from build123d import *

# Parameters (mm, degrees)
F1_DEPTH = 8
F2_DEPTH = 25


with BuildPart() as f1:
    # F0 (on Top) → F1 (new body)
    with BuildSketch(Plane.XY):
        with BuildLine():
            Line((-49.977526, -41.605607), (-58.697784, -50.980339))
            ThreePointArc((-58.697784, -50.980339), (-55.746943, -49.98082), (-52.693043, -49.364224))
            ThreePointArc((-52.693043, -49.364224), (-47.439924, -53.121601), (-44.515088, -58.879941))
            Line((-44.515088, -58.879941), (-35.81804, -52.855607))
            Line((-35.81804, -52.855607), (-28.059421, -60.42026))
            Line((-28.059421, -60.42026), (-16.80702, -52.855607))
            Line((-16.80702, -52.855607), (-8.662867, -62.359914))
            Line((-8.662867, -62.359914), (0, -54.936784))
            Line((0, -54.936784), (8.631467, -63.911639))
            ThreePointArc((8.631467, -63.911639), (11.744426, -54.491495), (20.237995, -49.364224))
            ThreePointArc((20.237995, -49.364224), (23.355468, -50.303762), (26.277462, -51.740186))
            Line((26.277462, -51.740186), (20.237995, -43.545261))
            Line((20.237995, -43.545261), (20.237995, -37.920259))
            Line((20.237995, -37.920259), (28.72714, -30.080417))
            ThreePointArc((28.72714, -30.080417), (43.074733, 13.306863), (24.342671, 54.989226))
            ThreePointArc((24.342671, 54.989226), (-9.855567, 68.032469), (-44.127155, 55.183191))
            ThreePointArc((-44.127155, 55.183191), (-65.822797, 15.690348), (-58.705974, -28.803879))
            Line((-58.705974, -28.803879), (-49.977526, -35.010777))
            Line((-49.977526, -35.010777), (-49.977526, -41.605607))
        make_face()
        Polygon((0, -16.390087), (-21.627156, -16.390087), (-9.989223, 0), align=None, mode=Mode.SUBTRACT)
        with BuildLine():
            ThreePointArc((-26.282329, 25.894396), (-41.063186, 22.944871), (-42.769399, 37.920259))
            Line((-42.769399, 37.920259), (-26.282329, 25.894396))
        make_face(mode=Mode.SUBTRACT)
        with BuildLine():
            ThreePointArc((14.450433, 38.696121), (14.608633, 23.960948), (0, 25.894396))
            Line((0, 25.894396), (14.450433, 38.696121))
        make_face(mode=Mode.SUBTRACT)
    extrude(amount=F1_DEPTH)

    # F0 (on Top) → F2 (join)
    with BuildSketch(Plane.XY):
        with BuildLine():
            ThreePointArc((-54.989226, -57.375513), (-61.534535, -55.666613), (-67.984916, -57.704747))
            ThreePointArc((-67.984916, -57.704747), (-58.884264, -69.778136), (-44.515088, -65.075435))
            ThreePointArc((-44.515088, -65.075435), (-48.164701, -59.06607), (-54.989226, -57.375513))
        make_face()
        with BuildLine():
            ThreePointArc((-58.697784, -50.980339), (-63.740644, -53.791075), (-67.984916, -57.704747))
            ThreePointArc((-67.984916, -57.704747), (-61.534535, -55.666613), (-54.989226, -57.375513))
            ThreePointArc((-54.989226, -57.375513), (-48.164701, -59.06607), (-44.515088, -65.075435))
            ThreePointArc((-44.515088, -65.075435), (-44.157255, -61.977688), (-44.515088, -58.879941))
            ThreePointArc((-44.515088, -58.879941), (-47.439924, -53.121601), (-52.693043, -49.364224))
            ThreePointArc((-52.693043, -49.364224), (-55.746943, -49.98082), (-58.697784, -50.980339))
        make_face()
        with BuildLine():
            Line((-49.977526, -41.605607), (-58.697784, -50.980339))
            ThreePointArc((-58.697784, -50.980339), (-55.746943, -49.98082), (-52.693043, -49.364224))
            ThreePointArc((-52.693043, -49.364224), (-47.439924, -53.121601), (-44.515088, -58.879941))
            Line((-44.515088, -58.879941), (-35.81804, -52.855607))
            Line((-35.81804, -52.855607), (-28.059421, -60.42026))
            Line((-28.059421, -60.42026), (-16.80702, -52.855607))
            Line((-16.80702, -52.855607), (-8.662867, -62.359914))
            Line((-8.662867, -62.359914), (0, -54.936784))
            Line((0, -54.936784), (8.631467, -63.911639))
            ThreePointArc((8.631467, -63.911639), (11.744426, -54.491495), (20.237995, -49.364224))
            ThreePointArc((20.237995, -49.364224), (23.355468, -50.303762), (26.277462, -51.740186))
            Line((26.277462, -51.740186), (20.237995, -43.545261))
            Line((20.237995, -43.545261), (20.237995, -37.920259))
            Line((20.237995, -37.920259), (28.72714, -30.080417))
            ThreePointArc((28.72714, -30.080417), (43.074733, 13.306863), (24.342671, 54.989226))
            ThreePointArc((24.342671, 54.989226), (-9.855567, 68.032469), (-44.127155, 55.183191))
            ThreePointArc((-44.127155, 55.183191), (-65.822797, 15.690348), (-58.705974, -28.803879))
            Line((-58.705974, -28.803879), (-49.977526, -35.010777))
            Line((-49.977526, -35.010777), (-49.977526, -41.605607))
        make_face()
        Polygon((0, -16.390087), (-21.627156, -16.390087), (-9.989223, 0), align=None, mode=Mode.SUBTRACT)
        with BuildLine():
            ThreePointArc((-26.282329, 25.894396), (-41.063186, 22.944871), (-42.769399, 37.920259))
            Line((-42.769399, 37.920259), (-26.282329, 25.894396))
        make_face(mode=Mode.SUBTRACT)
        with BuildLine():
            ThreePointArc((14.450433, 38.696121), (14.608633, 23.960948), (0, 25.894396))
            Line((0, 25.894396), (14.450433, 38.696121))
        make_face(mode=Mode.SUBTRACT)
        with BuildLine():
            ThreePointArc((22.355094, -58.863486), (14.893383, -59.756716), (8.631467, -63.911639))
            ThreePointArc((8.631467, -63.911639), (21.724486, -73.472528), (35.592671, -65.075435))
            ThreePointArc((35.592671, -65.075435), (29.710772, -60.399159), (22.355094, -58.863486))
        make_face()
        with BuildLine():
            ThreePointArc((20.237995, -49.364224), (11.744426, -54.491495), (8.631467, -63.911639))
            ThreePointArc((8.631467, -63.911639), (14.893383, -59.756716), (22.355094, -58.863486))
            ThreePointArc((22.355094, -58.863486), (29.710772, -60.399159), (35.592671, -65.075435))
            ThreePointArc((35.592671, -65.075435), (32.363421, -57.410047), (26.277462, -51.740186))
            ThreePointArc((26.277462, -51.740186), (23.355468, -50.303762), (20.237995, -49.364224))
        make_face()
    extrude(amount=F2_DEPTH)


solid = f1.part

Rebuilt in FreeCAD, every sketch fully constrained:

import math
import FreeCAD as App
import Part
import Sketcher

V = App.Vector
Q = App.Units.Quantity

doc = App.newDocument("Part")
body = doc.addObject("PartDesign::Body", "Body")

sketch1 = doc.addObject("Sketcher::SketchObject", "Sketch")
body.addObject(sketch1)
sketch1.AttachmentSupport = (doc.XY_Plane, [""])
sketch1.MapMode = "FlatFace"
sketch1.addGeometry([
    Part.LineSegment(V(-50, -42, 0), V(-59, -51, 0)),
    Part.ArcOfCircle(Part.Circle(V(-49, -74, 0), V(0, 0, 1), 24), math.radians(97.77), math.radians(112.36)),
    Part.ArcOfCircle(Part.Circle(V(-58, -62, 0), V(0, 0, 1), 14), math.radians(13), math.radians(68)),
    Part.LineSegment(V(-45, -59, 0), V(-36, -53, 0)),
    Part.LineSegment(V(-36, -53, 0), V(-28, -60, 0)),
    Part.LineSegment(V(-28, -60, 0), V(-17, -53, 0)),
    Part.LineSegment(V(-17, -53, 0), V(-9, -62, 0)),
    Part.LineSegment(V(-9, -62, 0), V(0, -55, 0)),
    Part.LineSegment(V(0, -55, 0), V(9, -64, 0)),
    Part.ArcOfCircle(Part.Circle(V(23, -63, 0), V(0, 0, 1), 14), math.radians(101), math.radians(182)),
    Part.ArcOfCircle(Part.Circle(V(16, -69, 0), V(0, 0, 1), 20), math.radians(59.12), math.radians(77.93)),
    Part.LineSegment(V(26, -52, 0), V(20, -44, 0)),
    Part.LineSegment(V(20, -44, 0), V(20, -38, 0)),
    Part.LineSegment(V(20, -38, 0), V(29, -30, 0)),
    Part.ArcOfCircle(Part.Circle(V(-20, 10, 0), V(0, 0, 1), 63), math.radians(-40), math.radians(45)),
    Part.ArcOfCircle(Part.Circle(V(-10, 16, 0), V(0, 0, 1), 52), math.radians(48), math.radians(131)),
    Part.ArcOfCircle(Part.Circle(V(3, 4, 0), V(0, 0, 1), 69), math.radians(132), math.radians(208)),
    Part.LineSegment(V(-59, -29, 0), V(-50, -35, 0)),
    Part.LineSegment(V(-50, -35, 0), V(-50, -42, 0)),
    Part.LineSegment(V(-10, 0, 0), V(0, -16, 0)),
    Part.LineSegment(V(0, -16, 0), V(-22, -16, 0)),
    Part.LineSegment(V(-22, -16, 0), V(-10, 0, 0)),
    Part.LineSegment(V(-43, 38, 0), V(-26, 26, 0)),
    Part.ArcOfCircle(Part.Circle(V(-35, 31, 0), V(0, 0, 1), 10), math.radians(139), math.radians(329)),
    Part.LineSegment(V(0, 26, 0), V(14, 39, 0)),
    Part.ArcOfCircle(Part.Circle(V(8, 31, 0), V(0, 0, 1), 10), math.radians(-147), math.radians(50)),
], False)
sketch1.addConstraint([
    Sketcher.Constraint("Coincident", 0, 2, 1, 2),
    Sketcher.Constraint("Coincident", 1, 1, 2, 2),
    Sketcher.Constraint("Coincident", 2, 1, 3, 1),
    Sketcher.Constraint("Coincident", 3, 2, 4, 1),
    Sketcher.Constraint("Coincident", 4, 2, 5, 1),
    Sketcher.Constraint("Coincident", 5, 2, 6, 1),
    Sketcher.Constraint("Coincident", 6, 2, 7, 1),
    Sketcher.Constraint("Coincident", 7, 2, 8, 1),
    Sketcher.Constraint("Coincident", 8, 2, 9, 2),
    Sketcher.Constraint("Coincident", 9, 1, 10, 2),
    Sketcher.Constraint("Coincident", 10, 1, 11, 1),
    Sketcher.Constraint("Coincident", 11, 2, 12, 1),
    Sketcher.Constraint("Coincident", 12, 2, 13, 1),
    Sketcher.Constraint("Coincident", 13, 2, 14, 1),
    Sketcher.Constraint("Coincident", 14, 2, 15, 1),
    Sketcher.Constraint("Coincident", 15, 2, 16, 1),
    Sketcher.Constraint("Coincident", 16, 2, 17, 1),
    Sketcher.Constraint("Coincident", 17, 2, 18, 1),
    Sketcher.Constraint("Coincident", 18, 2, 0, 1),
    Sketcher.Constraint("Coincident", 19, 2, 20, 1),
    Sketcher.Constraint("Coincident", 20, 2, 21, 1),
    Sketcher.Constraint("Coincident", 21, 2, 19, 1),
    Sketcher.Constraint("Coincident", 22, 1, 23, 1),
    Sketcher.Constraint("Coincident", 23, 2, 22, 2),
    Sketcher.Constraint("Coincident", 24, 1, 25, 1),
    Sketcher.Constraint("Coincident", 25, 2, 24, 2),
    Sketcher.Constraint("Vertical", 12),
    Sketcher.Constraint("Vertical", 18),
    Sketcher.Constraint("Horizontal", 20),
    Sketcher.Constraint("PointOnObject", 7, 2, -2),
    Sketcher.Constraint("PointOnObject", 19, 2, -2),
    Sketcher.Constraint("PointOnObject", 21, 2, -1),
    Sketcher.Constraint("PointOnObject", 24, 1, -2),
    Sketcher.Constraint("Perpendicular", 6, 7),
    Sketcher.Constraint("Horizontal", 3, 2, 5, 2),
    Sketcher.Constraint("Horizontal", 1, 1, 9, 1),
    Sketcher.Constraint("Horizontal", 23, 2, 24, 1),
    Sketcher.Constraint("Vertical", 9, 1, 11, 2),
    Sketcher.Constraint("Radius", 25, Q("9.7513 mm")),
    Sketcher.Constraint("Radius", 1, Q("24.477419 mm")),
    Sketcher.Constraint("Radius", 23, Q("10.23918 mm")),
    Sketcher.Constraint("DistanceY", 3, 2, 18, 2, Q("11.25 mm")),
    Sketcher.Constraint("Radius", 2, Q("13.587448 mm")),
    Sketcher.Constraint("Radius", 9, Q("14.299787 mm")),
    Sketcher.Constraint("Radius", 10, Q("19.854426 mm")),
    Sketcher.Constraint("Radius", 14, Q("63.046044 mm")),
    Sketcher.Constraint("Radius", 15, Q("51.738504 mm")),
    Sketcher.Constraint("Radius", 16, Q("69.430735 mm")),
    Sketcher.Constraint("DistanceX", 15, 3, 10, 3, Q("26.089001 mm")),
    Sketcher.Constraint("DistanceY", 18, 2, 18, 1, Q("6.59483 mm")),
    Sketcher.Constraint("DistanceX", 22, 1, -1, 1, Q("42.769399 mm")),
    Sketcher.Constraint("DistanceX", 1, 1, 14, 3, Q("32.805301 mm")),
    Sketcher.Constraint("DistanceY", 1, 3, 2, 1, Q("14.7372 mm")),
    Sketcher.Constraint("DistanceX", 4, 2, 5, 2, Q("11.252401 mm")),
    Sketcher.Constraint("DistanceX", 8, 2, 10, 3, Q("7.4554 mm")),
    Sketcher.Constraint("DistanceY", 7, 2, 10, 1, Q("3.196598 mm")),
    Sketcher.Constraint("DistanceY", 14, 3, 15, 2, Q("45.121399 mm")),
    Sketcher.Constraint("DistanceY", 17, 2, 16, 2, Q("6.206898 mm")),
    Sketcher.Constraint("Distance", 5, Q("13.55878 mm")),
    Sketcher.Constraint("Distance", 7, Q("11.408248 mm")),
    Sketcher.Constraint("Distance", 11, Q("10.179978 mm")),
    Sketcher.Constraint("Distance", 17, Q("10.71034 mm")),
    Sketcher.Constraint("Distance", 22, Q("20.406981 mm")),
    Sketcher.Constraint("Distance", 24, Q("19.305418 mm")),
    Sketcher.Constraint("DistanceX", 20, 2, 20, 1, Q("21.627156 mm")),
    Sketcher.Constraint("DistanceY", 12, 1, 12, 2, Q("5.625002 mm")),
    Sketcher.Constraint("DistanceY", 1, 3, -1, 1, Q("73.617141 mm")),
    Sketcher.Constraint("DistanceY", 9, 3, -1, 1, Q("63.40978 mm")),
    Sketcher.Constraint("DistanceX", 14, 3, -1, 1, Q("19.887742 mm")),
    Sketcher.Constraint("DistanceY", -1, 1, 23, 3, Q("31.21724 mm")),
    Sketcher.Constraint("DistanceY", -1, 1, 25, 3, Q("31.259961 mm")),
    Sketcher.Constraint("DistanceY", 0, 2, -1, 1, Q("50.980339 mm")),
    Sketcher.Constraint("DistanceX", 2, 1, -1, 1, Q("44.515088 mm")),
    Sketcher.Constraint("DistanceX", 3, 2, -1, 1, Q("35.81804 mm")),
    Sketcher.Constraint("DistanceX", 4, 2, -1, 1, Q("28.059421 mm")),
    Sketcher.Constraint("DistanceY", 4, 2, -1, 1, Q("60.42026 mm")),
    Sketcher.Constraint("DistanceY", 8, 2, -1, 1, Q("63.911639 mm")),
    Sketcher.Constraint("DistanceY", 11, 2, -1, 1, Q("43.545261 mm")),
    Sketcher.Constraint("DistanceX", -1, 1, 13, 2, Q("28.72714 mm")),
    Sketcher.Constraint("DistanceX", -1, 1, 14, 2, Q("24.342671 mm")),
    Sketcher.Constraint("DistanceY", -1, 1, 15, 2, Q("55.183191 mm")),
    Sketcher.Constraint("DistanceY", -1, 1, 22, 1, Q("37.920259 mm")),
    Sketcher.Constraint("DistanceY", 9, 3, 2, 3, Q("1.432092 mm")),
    Sketcher.Constraint("DistanceX", 2, 3, 10, 3, Q("73.83157 mm")),
    Sketcher.Constraint("DistanceX", 15, 3, 16, 3, Q("12.587109 mm")),
    Sketcher.Constraint("DistanceY", 13, 2, 19, 2, Q("13.69033 mm")),
    Sketcher.Constraint("DistanceX", 14, 3, 21, 2, Q("9.898519 mm")),
])
pad1 = doc.addObject("PartDesign::Pad", "Pad")
body.addObject(pad1)
pad1.Profile = sketch1
pad1.Length = 8

sketch2 = doc.addObject("Sketcher::SketchObject", "Sketch001")
body.addObject(sketch2)
sketch2.AttachmentSupport = (doc.XY_Plane, [""])
sketch2.MapMode = "FlatFace"
sketch2.addGeometry([
    Part.ArcOfCircle(Part.Circle(V(-55, -57, 0), V(0, 0, 1), 13), math.radians(-179), math.radians(-36)),
    Part.ArcOfCircle(Part.Circle(V(-58, -62, 0), V(0, 0, 1), 14), math.radians(-13), math.radians(13)),
    Part.LineSegment(V(-45, -59, 0), V(-36, -53, 0)),
    Part.LineSegment(V(-36, -53, 0), V(-28, -60, 0)),
    Part.LineSegment(V(-28, -60, 0), V(-17, -53, 0)),
    Part.LineSegment(V(-17, -53, 0), V(-9, -62, 0)),
    Part.LineSegment(V(-9, -62, 0), V(0, -55, 0)),
    Part.LineSegment(V(0, -55, 0), V(9, -64, 0)),
    Part.ArcOfCircle(Part.Circle(V(22, -59, 0), V(0, 0, 1), 15), math.radians(-160), math.radians(-25)),
    Part.ArcOfCircle(Part.Circle(V(16, -69, 0), V(0, 0, 1), 20), math.radians(11), math.radians(59)),
    Part.LineSegment(V(26, -52, 0), V(20, -44, 0)),
    Part.LineSegment(V(20, -44, 0), V(20, -38, 0)),
    Part.LineSegment(V(20, -38, 0), V(29, -30, 0)),
    Part.ArcOfCircle(Part.Circle(V(-20, 10, 0), V(0, 0, 1), 63), math.radians(-40), math.radians(45)),
    Part.ArcOfCircle(Part.Circle(V(-10, 16, 0), V(0, 0, 1), 52), math.radians(48), math.radians(131)),
    Part.ArcOfCircle(Part.Circle(V(3, 4, 0), V(0, 0, 1), 69), math.radians(132), math.radians(208)),
    Part.LineSegment(V(-59, -29, 0), V(-50, -35, 0)),
    Part.LineSegment(V(-50, -35, 0), V(-50, -42, 0)),
    Part.LineSegment(V(-50, -42, 0), V(-59, -51, 0)),
    Part.ArcOfCircle(Part.Circle(V(-49, -74, 0), V(0, 0, 1), 24), math.radians(112), math.radians(139)),
    Part.LineSegment(V(-10, 0, 0), V(0, -16, 0)),
    Part.LineSegment(V(0, -16, 0), V(-22, -16, 0)),
    Part.LineSegment(V(-22, -16, 0), V(-10, 0, 0)),
    Part.LineSegment(V(-43, 38, 0), V(-26, 26, 0)),
    Part.ArcOfCircle(Part.Circle(V(-35, 31, 0), V(0, 0, 1), 10), math.radians(139), math.radians(329)),
    Part.LineSegment(V(0, 26, 0), V(14, 39, 0)),
    Part.ArcOfCircle(Part.Circle(V(8, 31, 0), V(0, 0, 1), 10), math.radians(-147), math.radians(50)),
], False)
sketch2.addConstraint([
    Sketcher.Constraint("Coincident", 0, 2, 1, 1),
    Sketcher.Constraint("Coincident", 1, 2, 2, 1),
    Sketcher.Constraint("Coincident", 2, 2, 3, 1),
    Sketcher.Constraint("Coincident", 3, 2, 4, 1),
    Sketcher.Constraint("Coincident", 4, 2, 5, 1),
    Sketcher.Constraint("Coincident", 5, 2, 6, 1),
    Sketcher.Constraint("Coincident", 6, 2, 7, 1),
    Sketcher.Constraint("Coincident", 7, 2, 8, 1),
    Sketcher.Constraint("Coincident", 8, 2, 9, 1),
    Sketcher.Constraint("Coincident", 9, 2, 10, 1),
    Sketcher.Constraint("Coincident", 10, 2, 11, 1),
    Sketcher.Constraint("Coincident", 11, 2, 12, 1),
    Sketcher.Constraint("Coincident", 12, 2, 13, 1),
    Sketcher.Constraint("Coincident", 13, 2, 14, 1),
    Sketcher.Constraint("Coincident", 14, 2, 15, 1),
    Sketcher.Constraint("Coincident", 15, 2, 16, 1),
    Sketcher.Constraint("Coincident", 16, 2, 17, 1),
    Sketcher.Constraint("Coincident", 17, 2, 18, 1),
    Sketcher.Constraint("Coincident", 18, 2, 19, 1),
    Sketcher.Constraint("Coincident", 19, 2, 0, 1),
    Sketcher.Constraint("Coincident", 20, 2, 21, 1),
    Sketcher.Constraint("Coincident", 21, 2, 22, 1),
    Sketcher.Constraint("Coincident", 22, 2, 20, 1),
    Sketcher.Constraint("Coincident", 23, 1, 24, 1),
    Sketcher.Constraint("Coincident", 24, 2, 23, 2),
    Sketcher.Constraint("Coincident", 25, 1, 26, 1),
    Sketcher.Constraint("Coincident", 26, 2, 25, 2),
    Sketcher.Constraint("Vertical", 11),
    Sketcher.Constraint("Vertical", 17),
    Sketcher.Constraint("Horizontal", 21),
    Sketcher.Constraint("PointOnObject", 6, 2, -2),
    Sketcher.Constraint("PointOnObject", 20, 2, -2),
    Sketcher.Constraint("PointOnObject", 22, 2, -1),
    Sketcher.Constraint("PointOnObject", 25, 1, -2),
    Sketcher.Constraint("Perpendicular", 5, 6),
    Sketcher.Constraint("Horizontal", 2, 2, 4, 2),
    Sketcher.Constraint("Horizontal", 0, 2, 8, 2),
    Sketcher.Constraint("Horizontal", 24, 2, 25, 1),
    Sketcher.Constraint("Vertical", 0, 2, 1, 2),
    Sketcher.Constraint("Radius", 26, Q("9.7513 mm")),
    Sketcher.Constraint("Radius", 0, Q("12.99986 mm")),
    Sketcher.Constraint("Radius", 19, Q("24.477359 mm")),
    Sketcher.Constraint("Radius", 24, Q("10.23918 mm")),
    Sketcher.Constraint("DistanceY", 2, 2, 17, 2, Q("11.25 mm")),
    Sketcher.Constraint("Radius", 1, Q("13.587457 mm")),
    Sketcher.Constraint("Radius", 8, Q("14.622646 mm")),
    Sketcher.Constraint("Radius", 9, Q("19.854464 mm")),
    Sketcher.Constraint("Radius", 13, Q("63.046044 mm")),
    Sketcher.Constraint("Radius", 14, Q("51.738504 mm")),
    Sketcher.Constraint("Radius", 15, Q("69.430735 mm")),
    Sketcher.Constraint("DistanceY", 17, 2, 17, 1, Q("6.59483 mm")),
    Sketcher.Constraint("DistanceX", 23, 1, -1, 1, Q("42.769399 mm")),
    Sketcher.Constraint("DistanceY", 1, 3, 8, 3, Q("3.114202 mm")),
    Sketcher.Constraint("DistanceX", 0, 3, 15, 3, Q("57.574201 mm")),
    Sketcher.Constraint("DistanceY", 19, 3, 1, 3, Q("11.639398 mm")),
    Sketcher.Constraint("DistanceX", 26, 3, 8, 3, Q("14.2127 mm")),
    Sketcher.Constraint("DistanceX", 3, 2, 4, 2, Q("11.252401 mm")),
    Sketcher.Constraint("DistanceY", 9, 3, 6, 2, Q("13.8431 mm")),
    Sketcher.Constraint("DistanceY", 8, 3, 9, 2, Q("7.1233 mm")),
    Sketcher.Constraint("DistanceX", 10, 2, 8, 3, Q("2.117098 mm")),
    Sketcher.Constraint("DistanceY", 13, 3, 14, 2, Q("45.121399 mm")),
    Sketcher.Constraint("DistanceY", 16, 2, 15, 2, Q("6.206898 mm")),
    Sketcher.Constraint("DistanceX", 0, 3, 16, 2, Q("5.0117 mm")),
    Sketcher.Constraint("DistanceY", 1, 2, 18, 2, Q("7.899602 mm")),
    Sketcher.Constraint("Distance", 4, Q("13.55878 mm")),
    Sketcher.Constraint("Distance", 6, Q("11.408248 mm")),
    Sketcher.Constraint("Distance", 10, Q("10.179978 mm")),
    Sketcher.Constraint("Distance", 16, Q("10.71034 mm")),
    Sketcher.Constraint("Distance", 23, Q("20.406981 mm")),
    Sketcher.Constraint("Distance", 25, Q("19.305418 mm")),
    Sketcher.Constraint("DistanceX", 21, 2, 21, 1, Q("21.627156 mm")),
    Sketcher.Constraint("DistanceY", 11, 1, 11, 2, Q("5.625002 mm")),
    Sketcher.Constraint("DistanceX", 1, 3, -1, 1, Q("57.744712 mm")),
    Sketcher.Constraint("DistanceX", 13, 3, -1, 1, Q("19.887742 mm")),
    Sketcher.Constraint("DistanceY", -1, 1, 24, 3, Q("31.21724 mm")),
    Sketcher.Constraint("DistanceY", -1, 1, 26, 3, Q("31.259961 mm")),
    Sketcher.Constraint("DistanceX", 0, 2, -1, 1, Q("44.515088 mm")),
    Sketcher.Constraint("DistanceY", 1, 2, -1, 1, Q("58.879941 mm")),
    Sketcher.Constraint("DistanceX", 2, 2, -1, 1, Q("35.81804 mm")),
    Sketcher.Constraint("DistanceX", 3, 2, -1, 1, Q("28.059421 mm")),
    Sketcher.Constraint("DistanceY", 3, 2, -1, 1, Q("60.42026 mm")),
    Sketcher.Constraint("DistanceY", 7, 2, -1, 1, Q("63.911639 mm")),
    Sketcher.Constraint("DistanceX", -1, 1, 8, 2, Q("35.592671 mm")),
    Sketcher.Constraint("DistanceX", -1, 1, 9, 2, Q("26.277462 mm")),
    Sketcher.Constraint("DistanceX", -1, 1, 12, 2, Q("28.72714 mm")),
    Sketcher.Constraint("DistanceX", -1, 1, 13, 2, Q("24.342671 mm")),
    Sketcher.Constraint("DistanceY", -1, 1, 14, 2, Q("55.183191 mm")),
    Sketcher.Constraint("DistanceX", 0, 3, 8, 3, Q("77.344319 mm")),
    Sketcher.Constraint("DistanceX", 1, 3, 19, 3, Q("8.35922 mm")),
    Sketcher.Constraint("DistanceY", 12, 2, 20, 2, Q("13.69033 mm")),
    Sketcher.Constraint("DistanceX", 13, 3, 22, 2, Q("9.898519 mm")),
])
pad2 = doc.addObject("PartDesign::Pad", "Pad001")
body.addObject(pad2)
pad2.Profile = sketch2
pad2.Length = 25

doc.recompute()
